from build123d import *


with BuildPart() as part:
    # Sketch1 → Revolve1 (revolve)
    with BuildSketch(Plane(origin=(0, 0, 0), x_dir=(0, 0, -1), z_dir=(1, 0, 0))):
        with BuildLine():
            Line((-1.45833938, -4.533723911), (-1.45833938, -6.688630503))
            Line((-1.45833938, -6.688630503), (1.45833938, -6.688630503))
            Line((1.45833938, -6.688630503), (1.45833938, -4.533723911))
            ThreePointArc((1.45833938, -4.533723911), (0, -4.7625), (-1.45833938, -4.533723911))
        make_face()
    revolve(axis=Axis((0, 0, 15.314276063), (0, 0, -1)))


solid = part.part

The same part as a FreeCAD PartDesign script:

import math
import FreeCAD as App
import Part
import Sketcher
Q = App.Units.Quantity

doc = App.newDocument("Part")
body = doc.addObject("PartDesign::Body", "Body")

# Sketch on YZ plane
sketch1 = body.newObject("Sketcher::SketchObject", "Sketch")
sketch1.AttachmentSupport = (doc.getObject("YZ_Plane"), [""])
sketch1.MapMode = "FlatFace"
sketch1.addGeometry(Part.LineSegment(App.Vector(-4.5, 1.5, 0), App.Vector(-6.7, 1.5, 0)), False)
sketch1.addGeometry(Part.LineSegment(App.Vector(-6.7, 1.5, 0), App.Vector(-6.7, -1.5, 0)), False)
sketch1.addGeometry(Part.LineSegment(App.Vector(-6.7, -1.5, 0), App.Vector(-4.5, -1.5, 0)), False)
sketch1.addGeometry(Part.ArcOfCircle(Part.Circle(App.Vector(0, 0, 0), App.Vector(0, 0, 1), 4.8), math.radians(162), math.radians(198)), False)
sketch1.addConstraint(Sketcher.Constraint("Coincident", 0, 2, 1, 1))
sketch1.addConstraint(Sketcher.Constraint("Coincident", 1, 2, 2, 1))
sketch1.addConstraint(Sketcher.Constraint("Coincident", 2, 2, 3, 2))
sketch1.addConstraint(Sketcher.Constraint("Coincident", 3, 1, 0, 1))
sketch1.addConstraint(Sketcher.Constraint("Horizontal", 0))
sketch1.addConstraint(Sketcher.Constraint("Vertical", 1))
sketch1.addConstraint(Sketcher.Constraint("Horizontal", 2))
sketch1.addConstraint(Sketcher.Constraint("Coincident", 3, 3, -1, 1))
sketch1.addConstraint(Sketcher.Constraint("Vertical", 2, 2, 3, 1))
sketch1.addConstraint(Sketcher.Constraint("Radius", 3, Q("0.1875 in")))
sketch1.addConstraint(Sketcher.Constraint("DistanceY", 1, 2, 1, 1, 2.916679))
sketch1.addConstraint(Sketcher.Constraint("DistanceX", 0, 2, 0, 1, 2.154907))
revolution = body.newObject("PartDesign::Revolution", "Revolution")
revolution.Profile = sketch1
revolution.ReferenceAxis = (sketch1, ["V_Axis"])
revolution.Angle = 360

doc.recompute()
